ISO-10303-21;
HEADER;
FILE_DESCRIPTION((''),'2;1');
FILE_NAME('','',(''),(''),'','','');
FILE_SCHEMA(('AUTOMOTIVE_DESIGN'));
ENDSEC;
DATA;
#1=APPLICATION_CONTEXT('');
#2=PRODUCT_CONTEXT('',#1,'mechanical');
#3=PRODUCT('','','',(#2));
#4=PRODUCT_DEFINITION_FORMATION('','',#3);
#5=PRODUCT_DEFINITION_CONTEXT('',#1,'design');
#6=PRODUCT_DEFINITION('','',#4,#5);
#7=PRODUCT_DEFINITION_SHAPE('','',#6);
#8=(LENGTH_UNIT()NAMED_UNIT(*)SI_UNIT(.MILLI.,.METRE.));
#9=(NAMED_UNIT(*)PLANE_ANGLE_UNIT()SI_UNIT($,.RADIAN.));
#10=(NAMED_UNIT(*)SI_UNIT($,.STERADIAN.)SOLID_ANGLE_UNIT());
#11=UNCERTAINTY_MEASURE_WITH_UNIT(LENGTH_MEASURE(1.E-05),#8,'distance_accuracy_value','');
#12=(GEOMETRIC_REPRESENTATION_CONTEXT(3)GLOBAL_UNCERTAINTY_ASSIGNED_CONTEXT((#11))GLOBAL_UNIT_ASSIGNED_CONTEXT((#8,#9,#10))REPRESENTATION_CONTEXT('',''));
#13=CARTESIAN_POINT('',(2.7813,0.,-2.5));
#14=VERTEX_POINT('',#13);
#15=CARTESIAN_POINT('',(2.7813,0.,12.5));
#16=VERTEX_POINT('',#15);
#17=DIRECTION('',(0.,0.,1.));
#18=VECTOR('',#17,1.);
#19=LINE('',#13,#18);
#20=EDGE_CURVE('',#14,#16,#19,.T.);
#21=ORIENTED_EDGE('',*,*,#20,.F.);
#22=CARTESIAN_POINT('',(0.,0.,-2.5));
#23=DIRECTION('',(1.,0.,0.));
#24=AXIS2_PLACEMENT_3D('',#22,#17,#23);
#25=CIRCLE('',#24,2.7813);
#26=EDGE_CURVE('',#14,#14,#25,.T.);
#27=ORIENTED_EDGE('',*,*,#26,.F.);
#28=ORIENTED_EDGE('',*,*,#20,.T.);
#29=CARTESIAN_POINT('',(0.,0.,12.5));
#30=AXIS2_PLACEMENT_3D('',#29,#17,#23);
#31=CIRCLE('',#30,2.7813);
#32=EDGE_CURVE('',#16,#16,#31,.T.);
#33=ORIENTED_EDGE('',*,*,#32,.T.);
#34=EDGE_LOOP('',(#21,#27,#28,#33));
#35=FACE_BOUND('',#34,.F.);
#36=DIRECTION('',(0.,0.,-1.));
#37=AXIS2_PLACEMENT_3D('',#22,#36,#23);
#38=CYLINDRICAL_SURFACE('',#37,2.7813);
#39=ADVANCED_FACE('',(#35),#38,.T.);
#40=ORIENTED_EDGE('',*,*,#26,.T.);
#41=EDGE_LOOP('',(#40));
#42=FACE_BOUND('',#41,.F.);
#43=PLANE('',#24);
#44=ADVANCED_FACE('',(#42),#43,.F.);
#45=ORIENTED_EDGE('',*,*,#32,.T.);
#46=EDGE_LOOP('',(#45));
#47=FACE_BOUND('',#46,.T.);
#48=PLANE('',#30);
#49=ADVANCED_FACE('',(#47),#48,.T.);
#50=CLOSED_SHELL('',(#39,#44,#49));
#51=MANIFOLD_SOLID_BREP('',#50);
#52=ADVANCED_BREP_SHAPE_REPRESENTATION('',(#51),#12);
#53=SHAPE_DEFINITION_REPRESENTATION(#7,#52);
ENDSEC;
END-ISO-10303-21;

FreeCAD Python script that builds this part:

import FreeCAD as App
import Part
import Sketcher

doc = App.newDocument("Part")
body = doc.addObject("PartDesign::Body", "Body")

# Sketch on XY plane
sketch1 = doc.addObject("Sketcher::SketchObject", "Sketch")
body.addObject(sketch1)
sketch1.AttachmentSupport = (doc.XY_Plane, [""])
sketch1.MapMode = "FlatFace"
sketch1.AttachmentOffset = App.Placement(App.Vector(0, 0, -2.5), App.Rotation())
sketch1.addGeometry(Part.Circle(App.Vector(0, 0, 0), App.Vector(0, 0, 1), 2.8), False)
sketch1.addConstraint([
    Sketcher.Constraint("Coincident", 0, 3, -1, 1),
    Sketcher.Constraint("Diameter", 0, 5.5626),
])
pad1 = doc.addObject("PartDesign::Pad", "Pad")
body.addObject(pad1)
pad1.Profile = sketch1
pad1.Length = 15

doc.recompute()
